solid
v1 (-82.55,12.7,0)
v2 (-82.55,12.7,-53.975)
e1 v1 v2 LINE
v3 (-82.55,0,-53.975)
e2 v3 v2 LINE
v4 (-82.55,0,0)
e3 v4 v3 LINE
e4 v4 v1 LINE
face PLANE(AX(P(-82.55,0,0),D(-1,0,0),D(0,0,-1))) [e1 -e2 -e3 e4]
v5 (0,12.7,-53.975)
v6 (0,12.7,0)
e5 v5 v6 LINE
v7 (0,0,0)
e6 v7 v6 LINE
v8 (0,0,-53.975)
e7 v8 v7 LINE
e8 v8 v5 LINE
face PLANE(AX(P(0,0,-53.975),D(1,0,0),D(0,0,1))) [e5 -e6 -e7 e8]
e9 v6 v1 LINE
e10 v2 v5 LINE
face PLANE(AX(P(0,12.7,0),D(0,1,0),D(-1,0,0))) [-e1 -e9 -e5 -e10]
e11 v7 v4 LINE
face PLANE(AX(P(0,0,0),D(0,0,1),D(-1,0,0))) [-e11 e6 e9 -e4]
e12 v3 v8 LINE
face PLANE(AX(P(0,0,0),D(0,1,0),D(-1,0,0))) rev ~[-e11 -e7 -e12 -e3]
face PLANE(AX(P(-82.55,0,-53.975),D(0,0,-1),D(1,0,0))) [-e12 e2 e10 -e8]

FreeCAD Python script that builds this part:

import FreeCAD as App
import Part
import Sketcher
Q = App.Units.Quantity

doc = App.newDocument("Part")
body = doc.addObject("PartDesign::Body", "Body")

# Sketch on XZ plane
sketch1 = doc.addObject("Sketcher::SketchObject", "Sketch")
body.addObject(sketch1)
sketch1.AttachmentSupport = (doc.XZ_Plane, [""])
sketch1.MapMode = "FlatFace"
sketch1.addGeometry([
    Part.LineSegment(App.Vector(-82.55, 0, 0), App.Vector(0, 0, 0)),
    Part.LineSegment(App.Vector(0, 0, 0), App.Vector(0, -53.975, 0)),
    Part.LineSegment(App.Vector(0, -53.975, 0), App.Vector(-82.55, -53.975, 0)),
    Part.LineSegment(App.Vector(-82.55, -53.975, 0), App.Vector(-82.55, 0, 0)),
], False)
sketch1.addConstraint([
    Sketcher.Constraint("Coincident", 0, 2, 1, 1),
    Sketcher.Constraint("Coincident", 1, 2, 2, 1),
    Sketcher.Constraint("Coincident", 2, 2, 3, 1),
    Sketcher.Constraint("Coincident", 3, 2, 0, 1),
    Sketcher.Constraint("Horizontal", 0),
    Sketcher.Constraint("Vertical", 1),
    Sketcher.Constraint("Horizontal", 2),
    Sketcher.Constraint("Vertical", 3),
    Sketcher.Constraint("Coincident", 0, 2, -1, 1),
    Sketcher.Constraint("DistanceX", 0, 1, 0, 2, Q("3.25 in")),
    Sketcher.Constraint("DistanceY", 1, 2, 1, 1, Q("2.125 in")),
])
pad1 = doc.addObject("PartDesign::Pad", "Pad")
body.addObject(pad1)
pad1.Profile = sketch1
pad1.Length = Q("0.5 in")
pad1.Reversed = True

doc.recompute()
